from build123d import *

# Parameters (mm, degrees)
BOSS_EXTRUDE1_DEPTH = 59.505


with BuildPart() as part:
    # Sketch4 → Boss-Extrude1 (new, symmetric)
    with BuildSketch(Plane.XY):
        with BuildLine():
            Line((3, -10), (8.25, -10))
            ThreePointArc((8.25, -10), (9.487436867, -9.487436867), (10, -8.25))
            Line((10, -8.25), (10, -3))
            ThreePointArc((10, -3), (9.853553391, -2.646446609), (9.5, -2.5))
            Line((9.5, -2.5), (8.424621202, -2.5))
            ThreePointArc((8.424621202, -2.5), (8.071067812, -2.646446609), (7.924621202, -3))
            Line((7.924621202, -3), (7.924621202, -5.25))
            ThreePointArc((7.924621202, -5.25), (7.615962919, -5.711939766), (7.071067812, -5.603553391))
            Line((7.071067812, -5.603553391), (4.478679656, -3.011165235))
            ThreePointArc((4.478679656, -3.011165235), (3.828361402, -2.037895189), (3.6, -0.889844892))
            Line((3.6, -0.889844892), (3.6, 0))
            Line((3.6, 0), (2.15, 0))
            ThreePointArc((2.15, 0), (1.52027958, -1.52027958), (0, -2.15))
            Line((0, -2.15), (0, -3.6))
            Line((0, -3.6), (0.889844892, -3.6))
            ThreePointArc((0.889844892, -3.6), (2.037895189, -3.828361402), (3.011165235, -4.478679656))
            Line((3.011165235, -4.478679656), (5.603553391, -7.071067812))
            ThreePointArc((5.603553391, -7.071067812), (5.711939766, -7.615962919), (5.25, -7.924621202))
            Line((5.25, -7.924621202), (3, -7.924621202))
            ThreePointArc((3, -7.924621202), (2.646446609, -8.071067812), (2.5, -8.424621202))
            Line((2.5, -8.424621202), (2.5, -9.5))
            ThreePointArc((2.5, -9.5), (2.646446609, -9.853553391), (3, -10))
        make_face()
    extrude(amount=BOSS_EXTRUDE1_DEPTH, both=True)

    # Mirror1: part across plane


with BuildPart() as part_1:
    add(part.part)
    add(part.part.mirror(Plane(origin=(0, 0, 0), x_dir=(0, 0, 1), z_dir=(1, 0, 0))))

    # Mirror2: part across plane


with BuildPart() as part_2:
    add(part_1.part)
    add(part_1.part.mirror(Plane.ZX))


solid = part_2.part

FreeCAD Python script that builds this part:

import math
import FreeCAD as App
import Part
import Sketcher

doc = App.newDocument("Part")
body = doc.addObject("PartDesign::Body", "Body")

# Sketch on XY plane
sketch1 = body.newObject("Sketcher::SketchObject", "Sketch")
sketch1.AttachmentSupport = (doc.getObject("XY_Plane"), [""])
sketch1.MapMode = "FlatFace"
sketch1.addGeometry(Part.LineSegment(App.Vector(3, -10, 0), App.Vector(8.25, -10, 0)), False)
sketch1.addGeometry(Part.ArcOfCircle(Part.Circle(App.Vector(8.25, -8.25, 0), App.Vector(0, 0, 1), 1.75), math.radians(-90), math.radians(0)), False)
sketch1.addGeometry(Part.LineSegment(App.Vector(10, -8.25, 0), App.Vector(10, -3, 0)), False)
sketch1.addGeometry(Part.ArcOfCircle(Part.Circle(App.Vector(9.5, -3, 0), App.Vector(0, 0, 1), 0.5), math.radians(0), math.radians(90)), False)
sketch1.addGeometry(Part.LineSegment(App.Vector(9.5, -2.5, 0), App.Vector(8.42, -2.5, 0)), False)
sketch1.addGeometry(Part.ArcOfCircle(Part.Circle(App.Vector(8.42, -3, 0), App.Vector(0, 0, 1), 0.5), math.radians(90), math.radians(180)), False)
sketch1.addGeometry(Part.LineSegment(App.Vector(7.92, -3, 0), App.Vector(7.92, -5.25, 0)), False)
sketch1.addGeometry(Part.ArcOfCircle(Part.Circle(App.Vector(7.42, -5.25, 0), App.Vector(0, 0, 1), 0.5), math.radians(-135), math.radians(0)), False)
sketch1.addGeometry(Part.LineSegment(App.Vector(7.07, -5.6, 0), App.Vector(4.48, -3.01, 0)), False)
sketch1.addGeometry(Part.ArcOfCircle(Part.Circle(App.Vector(6.6, -0.89, 0), App.Vector(0, 0, 1), 3), math.radians(180), math.radians(225)), False)
sketch1.addGeometry(Part.LineSegment(App.Vector(3.6, -0.89, 0), App.Vector(3.6, 0, 0)), False)
sketch1.addGeometry(Part.LineSegment(App.Vector(3.6, 0, 0), App.Vector(2.15, 0, 0)), False)
sketch1.addGeometry(Part.ArcOfCircle(Part.Circle(App.Vector(0, 0, 0), App.Vector(0, 0, 1), 2.15), math.radians(-90), math.radians(0)), False)
sketch1.addGeometry(Part.LineSegment(App.Vector(0, -2.15, 0), App.Vector(0, -3.6, 0)), False)
sketch1.addGeometry(Part.LineSegment(App.Vector(0, -3.6, 0), App.Vector(0.89, -3.6, 0)), False)
sketch1.addGeometry(Part.ArcOfCircle(Part.Circle(App.Vector(0.89, -6.6, 0), App.Vector(0, 0, 1), 3), math.radians(45), math.radians(90)), False)
sketch1.addGeometry(Part.LineSegment(App.Vector(3.01, -4.48, 0), App.Vector(5.6, -7.07, 0)), False)
sketch1.addGeometry(Part.ArcOfCircle(Part.Circle(App.Vector(5.25, -7.42, 0), App.Vector(0, 0, 1), 0.5), math.radians(-90), math.radians(45)), False)
sketch1.addGeometry(Part.LineSegment(App.Vector(5.25, -7.92, 0), App.Vector(3, -7.92, 0)), False)
sketch1.addGeometry(Part.ArcOfCircle(Part.Circle(App.Vector(3, -8.42, 0), App.Vector(0, 0, 1), 0.5), math.radians(90), math.radians(180)), False)
sketch1.addGeometry(Part.LineSegment(App.Vector(2.5, -8.42, 0), App.Vector(2.5, -9.5, 0)), False)
sketch1.addGeometry(Part.ArcOfCircle(Part.Circle(App.Vector(3, -9.5, 0), App.Vector(0, 0, 1), 0.5), math.radians(180), math.radians(270)), False)
sketch1.addConstraint(Sketcher.Constraint("Tangent", 0, 2, 1, 1))
sketch1.addConstraint(Sketcher.Constraint("Tangent", 1, 2, 2, 1))
sketch1.addConstraint(Sketcher.Constraint("Tangent", 2, 2, 3, 1))
sketch1.addConstraint(Sketcher.Constraint("Tangent", 3, 2, 4, 1))
sketch1.addConstraint(Sketcher.Constraint("Tangent", 4, 2, 5, 1))
sketch1.addConstraint(Sketcher.Constraint("Tangent", 5, 2, 6, 1))
sketch1.addConstraint(Sketcher.Constraint("Tangent", 6, 2, 7, 2))
sketch1.addConstraint(Sketcher.Constraint("Tangent", 7, 1, 8, 1))
sketch1.addConstraint(Sketcher.Constraint("Tangent", 8, 2, 9, 2))
sketch1.addConstraint(Sketcher.Constraint("Tangent", 9, 1, 10, 1))
sketch1.addConstraint(Sketcher.Constraint("Coincident", 10, 2, 11, 1))
sketch1.addConstraint(Sketcher.Constraint("Coincident", 11, 2, 12, 2))
sketch1.addConstraint(Sketcher.Constraint("Coincident", 12, 1, 13, 1))
sketch1.addConstraint(Sketcher.Constraint("Coincident", 13, 2, 14, 1))
sketch1.addConstraint(Sketcher.Constraint("Tangent", 14, 2, 15, 2))
sketch1.addConstraint(Sketcher.Constraint("Tangent", 15, 1, 16, 1))
sketch1.addConstraint(Sketcher.Constraint("Tangent", 16, 2, 17, 2))
sketch1.addConstraint(Sketcher.Constraint("Tangent", 17, 1, 18, 1))
sketch1.addConstraint(Sketcher.Constraint("Tangent", 18, 2, 19, 1))
sketch1.addConstraint(Sketcher.Constraint("Tangent", 19, 2, 20, 1))
sketch1.addConstraint(Sketcher.Constraint("Tangent", 20, 2, 21, 1))
sketch1.addConstraint(Sketcher.Constraint("Tangent", 21, 2, 0, 1))
sketch1.addConstraint(Sketcher.Constraint("Horizontal", 0))
sketch1.addConstraint(Sketcher.Constraint("Vertical", 2))
sketch1.addConstraint(Sketcher.Constraint("Horizontal", 4))
sketch1.addConstraint(Sketcher.Constraint("Vertical", 6))
sketch1.addConstraint(Sketcher.Constraint("Vertical", 10))
sketch1.addConstraint(Sketcher.Constraint("Horizontal", 11))
sketch1.addConstraint(Sketcher.Constraint("Vertical", 13))
sketch1.addConstraint(Sketcher.Constraint("Horizontal", 14))
sketch1.addConstraint(Sketcher.Constraint("Horizontal", 18))
sketch1.addConstraint(Sketcher.Constraint("Vertical", 20))
sketch1.addConstraint(Sketcher.Constraint("Coincident", 12, 3, -1, 1))
sketch1.addConstraint(Sketcher.Constraint("Equal", 3, 5))
sketch1.addConstraint(Sketcher.Constraint("Equal", 5, 7))
sketch1.addConstraint(Sketcher.Constraint("Equal", 9, 15))
sketch1.addConstraint(Sketcher.Constraint("Equal", 7, 17))
sketch1.addConstraint(Sketcher.Constraint("Equal", 17, 19))
sketch1.addConstraint(Sketcher.Constraint("Equal", 19, 21))
sketch1.addConstraint(Sketcher.Constraint("PointOnObject", 10, 2, -1))
sketch1.addConstraint(Sketcher.Constraint("PointOnObject", 12, 1, -2))
sketch1.addConstraint(Sketcher.Constraint("Parallel", 8, 16))
sketch1.addConstraint(Sketcher.Constraint("Equal", 0, 2))
sketch1.addConstraint(Sketcher.Constraint("Equal", 18, 6))
sketch1.addConstraint(Sketcher.Constraint("Equal", 14, 10))
sketch1.addConstraint(Sketcher.Constraint("Equal", 11, 13))
sketch1.addConstraint(Sketcher.Constraint("Equal", 4, 20))
sketch1.addConstraint(Sketcher.Constraint("Equal", 8, 16))
sketch1.addConstraint(Sketcher.Constraint("Radius", 9, 3.0))
sketch1.addConstraint(Sketcher.Constraint("Radius", 3, 0.5))
sketch1.addConstraint(Sketcher.Constraint("Radius", 1, 1.75))
sketch1.addConstraint(Sketcher.Constraint("Radius", 12, 2.15))
sketch1.addConstraint(Sketcher.Constraint("DistanceY", 3, 3, -1, 1, 3.0))
sketch1.addConstraint(Sketcher.Constraint("DistanceY", 0, 2, -1, 1, 10.0))
sketch1.addConstraint(Sketcher.Constraint("DistanceY", 1, 3, 7, 3, 3.0))
sketch1.addConstraint(Sketcher.Constraint("DistanceX", 11, 2, 11, 1, 1.45))
sketch1.addConstraint(Sketcher.Constraint("DistanceX", 4, 2, 4, 1, 1.075379))
pad1 = body.newObject("PartDesign::Pad", "Pad")
pad1.Profile = sketch1
pad1.Length = 119.01
pad1.Midplane = True
body2 = doc.addObject("PartDesign::Body", "Body001")
doc.recompute()

body2.BaseFeature = body
doc.recompute()

mirroring = doc.addObject("Part::Mirroring", "Mirroring")
mirroring.Source = body
mirroring.Base = App.Vector(0, 0, 0)
mirroring.Normal = App.Vector(1, 0, 0)
body3 = doc.addObject("PartDesign::Body", "Body002")
body3.BaseFeature = mirroring
boolean = body2.newObject("PartDesign::Boolean", "Boolean")
boolean.Type = "Fuse"
boolean.addObjects([body3])
doc.recompute()
body4 = doc.addObject("PartDesign::Body", "Body003")
doc.recompute()

body4.BaseFeature = body2
doc.recompute()

mirroring2 = doc.addObject("Part::Mirroring", "Mirroring001")
mirroring2.Source = body2
mirroring2.Base = App.Vector(0, 0, 0)
mirroring2.Normal = App.Vector(0, 1, 0)
body5 = doc.addObject("PartDesign::Body", "Body004")
body5.BaseFeature = mirroring2
boolean2 = body4.newObject("PartDesign::Boolean", "Boolean001")
boolean2.Type = "Fuse"
boolean2.addObjects([body5])
doc.recompute()
mirroring.Visibility = False
mirroring2.Visibility = False

doc.recompute()
